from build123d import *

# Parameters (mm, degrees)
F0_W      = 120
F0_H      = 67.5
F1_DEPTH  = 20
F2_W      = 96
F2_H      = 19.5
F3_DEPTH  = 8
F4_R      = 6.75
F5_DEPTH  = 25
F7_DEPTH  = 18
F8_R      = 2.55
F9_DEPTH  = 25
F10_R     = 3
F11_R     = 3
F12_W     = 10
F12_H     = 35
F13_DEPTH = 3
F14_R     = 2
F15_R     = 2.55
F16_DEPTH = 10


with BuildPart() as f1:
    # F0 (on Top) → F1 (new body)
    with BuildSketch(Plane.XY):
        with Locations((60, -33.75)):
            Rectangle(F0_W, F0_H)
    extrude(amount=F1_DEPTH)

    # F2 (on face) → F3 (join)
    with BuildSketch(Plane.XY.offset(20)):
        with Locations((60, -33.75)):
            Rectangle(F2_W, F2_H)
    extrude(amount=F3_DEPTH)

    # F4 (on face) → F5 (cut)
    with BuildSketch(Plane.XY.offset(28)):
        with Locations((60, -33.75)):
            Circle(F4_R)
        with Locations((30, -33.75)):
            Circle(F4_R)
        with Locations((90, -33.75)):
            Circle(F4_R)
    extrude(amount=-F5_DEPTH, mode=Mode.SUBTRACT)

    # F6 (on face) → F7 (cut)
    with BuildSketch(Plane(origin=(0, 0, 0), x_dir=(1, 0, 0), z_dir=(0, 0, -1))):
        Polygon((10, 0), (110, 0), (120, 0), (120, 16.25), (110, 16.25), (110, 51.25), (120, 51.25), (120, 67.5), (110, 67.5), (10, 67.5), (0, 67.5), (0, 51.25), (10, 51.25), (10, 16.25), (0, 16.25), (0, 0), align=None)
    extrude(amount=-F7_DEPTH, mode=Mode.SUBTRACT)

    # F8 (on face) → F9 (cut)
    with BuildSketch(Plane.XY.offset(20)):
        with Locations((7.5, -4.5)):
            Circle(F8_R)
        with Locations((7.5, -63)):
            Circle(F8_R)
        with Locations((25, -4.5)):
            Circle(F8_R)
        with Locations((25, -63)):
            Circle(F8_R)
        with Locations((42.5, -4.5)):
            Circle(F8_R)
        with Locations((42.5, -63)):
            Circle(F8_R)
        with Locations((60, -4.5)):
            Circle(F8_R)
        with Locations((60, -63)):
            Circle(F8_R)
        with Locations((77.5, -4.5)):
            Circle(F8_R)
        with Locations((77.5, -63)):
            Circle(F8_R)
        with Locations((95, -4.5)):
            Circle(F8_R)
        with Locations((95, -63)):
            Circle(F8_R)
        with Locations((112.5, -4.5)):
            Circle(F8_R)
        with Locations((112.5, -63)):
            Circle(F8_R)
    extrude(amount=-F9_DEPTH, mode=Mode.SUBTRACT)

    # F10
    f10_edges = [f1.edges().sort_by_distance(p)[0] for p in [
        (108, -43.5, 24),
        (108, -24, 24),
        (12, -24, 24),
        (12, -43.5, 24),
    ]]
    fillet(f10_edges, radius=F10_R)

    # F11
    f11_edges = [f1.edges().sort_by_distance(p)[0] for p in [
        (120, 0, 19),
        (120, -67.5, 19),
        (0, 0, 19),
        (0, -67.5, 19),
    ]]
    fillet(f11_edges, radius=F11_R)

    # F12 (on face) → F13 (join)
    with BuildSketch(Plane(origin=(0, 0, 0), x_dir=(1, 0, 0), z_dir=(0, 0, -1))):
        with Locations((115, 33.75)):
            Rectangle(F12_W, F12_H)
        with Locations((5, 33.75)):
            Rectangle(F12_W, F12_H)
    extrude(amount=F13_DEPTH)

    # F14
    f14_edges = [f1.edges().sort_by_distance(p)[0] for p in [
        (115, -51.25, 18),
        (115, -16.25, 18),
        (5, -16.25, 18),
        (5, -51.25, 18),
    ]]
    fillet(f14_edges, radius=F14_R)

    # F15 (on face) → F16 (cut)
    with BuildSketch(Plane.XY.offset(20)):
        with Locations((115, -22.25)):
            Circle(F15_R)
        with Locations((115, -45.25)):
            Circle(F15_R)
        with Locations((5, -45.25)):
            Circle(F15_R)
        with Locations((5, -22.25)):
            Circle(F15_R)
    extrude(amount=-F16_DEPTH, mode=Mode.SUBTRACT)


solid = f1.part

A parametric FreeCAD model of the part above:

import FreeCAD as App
import Part
import Sketcher
from FreeCAD import Vector
Q = App.Units.Quantity


def edges_at(feature, points):
    """Names of the edges that pass closest to the given points."""
    edges = feature.Shape.Edges
    near = lambda p: min(range(len(edges)), key=lambda i: edges[i].distToShape(Part.Vertex(*p))[0])
    return sorted({f"Edge{near(p) + 1}" for p in points})


def add_polygon(sketch, points):
    """Adds a closed chain of lines whose ends are joined by coincident constraints."""
    first, n = sketch.GeometryCount, len(points)
    for a, b in zip(points, points[1:] + points[:1]):
        sketch.addGeometry(Part.LineSegment(App.Vector(*a, 0), App.Vector(*b, 0)), False)
    for i in range(n):
        sketch.addConstraint(Sketcher.Constraint("Coincident", first + i, 2, first + (i + 1) % n, 1))

doc = App.newDocument("Part")
params = doc.addObject("Spreadsheet::Sheet", "Params")
for row, (alias, value) in enumerate([
    ("sketch1_width", "120 mm"),
    ("sketch1_height", "67.5 mm"),
    ("pad1_length", "20 mm"),
    ("sketch2_width", "96 mm"),
    ("sketch2_height", "19.5 mm"),
    ("pad2_length", "8 mm"),
    ("sketch3_diameter", "13.5 mm"),
    ("pocket1_length", "25 mm"),
    ("sketch4_width", "10 mm"),
    ("sketch4_width2", "120 mm"),
    ("sketch4_height", "35 mm"),
    ("sketch4_height2", "16.25 mm"),
    ("pocket2_length", "18 mm"),
    ("sketch5_diameter", "5.1 mm"),
    ("pocket3_length", "25 mm"),
    ("fillet_radius", "3 mm"),
    ("fillet2_radius", "3 mm"),
    ("sketch6_width", "10 mm"),
    ("sketch6_height", "35 mm"),
    ("pad3_length", "3 mm"),
    ("fillet3_radius", "2 mm"),
    ("sketch7_diameter", "5.1 mm"),
    ("pocket4_length", "10 mm"),
], start=1):
    params.set(f"A{row}", alias)
    params.set(f"B{row}", "=" + value)
    params.setAlias(f"B{row}", alias)

body = doc.addObject("PartDesign::Body", "Body")

sketch1 = body.newObject("Sketcher::SketchObject", "Sketch")
sketch1.AttachmentSupport = (doc.getObject("XY_Plane"), [""])
sketch1.MapMode = "FlatFace"
add_polygon(sketch1, [(0, 0), (0, -68), (120, -68), (120, 0)])
sketch1.addConstraint([
    Sketcher.Constraint("Vertical", 0),
    Sketcher.Constraint("Horizontal", 1),
    Sketcher.Constraint("Vertical", 2),
    Sketcher.Constraint("Horizontal", 3),
    Sketcher.Constraint("Coincident", 3, 2, -1, 1),
    Sketcher.Constraint("DistanceX", 1, 1, 1, 2, Q("120 mm")),
    Sketcher.Constraint("DistanceY", 0, 2, 0, 1, Q("67.5 mm")),
])
sketch1.setExpression("Constraints[9]", "Params.sketch1_width")
sketch1.setExpression("Constraints[10]", "Params.sketch1_height")
pad1 = body.newObject("PartDesign::Pad", "Pad")
pad1.Profile = sketch1
pad1.setExpression("Length", "Params.pad1_length")

sketch2 = body.newObject("Sketcher::SketchObject", "Sketch001")
sketch2.AttachmentSupport = (doc.getObject("XY_Plane"), [""])
sketch2.MapMode = "FlatFace"
sketch2.AttachmentOffset = App.Placement(Vector(0, 0, 20), App.Rotation())
add_polygon(sketch2, [(12, -24), (12, -44), (108, -44), (108, -24)])
sketch2.addConstraint([
    Sketcher.Constraint("Vertical", 0),
    Sketcher.Constraint("Horizontal", 1),
    Sketcher.Constraint("Vertical", 2),
    Sketcher.Constraint("Horizontal", 3),
    Sketcher.Constraint("DistanceX", 1, 1, 1, 2, Q("96 mm")),
    Sketcher.Constraint("DistanceY", 0, 2, 0, 1, Q("19.5 mm")),
    Sketcher.Constraint("DistanceX", -1, 1, 0, 2, Q("12 mm")),
    Sketcher.Constraint("DistanceY", 2, 2, -1, 1, Q("24 mm")),
])
sketch2.setExpression("Constraints[8]", "Params.sketch2_width")
sketch2.setExpression("Constraints[9]", "Params.sketch2_height")
pad2 = body.newObject("PartDesign::Pad", "Pad001")
pad2.Profile = sketch2
pad2.setExpression("Length", "Params.pad2_length")

sketch3 = body.newObject("Sketcher::SketchObject", "Sketch002")
sketch3.AttachmentSupport = (doc.getObject("XY_Plane"), [""])
sketch3.MapMode = "FlatFace"
sketch3.AttachmentOffset = App.Placement(Vector(0, 0, 28), App.Rotation())
sketch3.addGeometry([
    Part.Circle(Vector(60, -34, 0), Vector(0, 0, 1), 7),
    Part.Circle(Vector(30, -34, 0), Vector(0, 0, 1), 7),
    Part.Circle(Vector(90, -34, 0), Vector(0, 0, 1), 7),
], False)
sketch3.addConstraint([
    Sketcher.Constraint("Equal", 0, 1),
    Sketcher.Constraint("Equal", 1, 2),
    Sketcher.Constraint("Horizontal", 0, 3, 1, 3),
    Sketcher.Constraint("Horizontal", 1, 3, 2, 3),
    Sketcher.Constraint("Diameter", 0, Q("13.5 mm")),
    Sketcher.Constraint("DistanceX", -1, 1, 0, 3, Q("60 mm")),
    Sketcher.Constraint("DistanceX", -1, 1, 1, 3, Q("30 mm")),
    Sketcher.Constraint("DistanceX", -1, 1, 2, 3, Q("90 mm")),
    Sketcher.Constraint("DistanceY", 0, 3, -1, 1, Q("33.75 mm")),
])
sketch3.setExpression("Constraints[4]", "Params.sketch3_diameter")
pocket1 = body.newObject("PartDesign::Pocket", "Pocket")
pocket1.Profile = sketch3
pocket1.setExpression("Length", "Params.pocket1_length")

sketch4 = body.newObject("Sketcher::SketchObject", "Sketch003")
sketch4.AttachmentSupport = (doc.getObject("XY_Plane"), [""])
sketch4.MapMode = "FlatFace"
add_polygon(sketch4, [(120, 0), (120, -16), (110, -16), (110, -51), (120, -51), (120, -68), (0, -68), (0, -51), (10, -51), (10, -16), (0, -16), (0, 0)])
sketch4.addConstraint([
    Sketcher.Constraint("Vertical", 0),
    Sketcher.Constraint("Horizontal", 1),
    Sketcher.Constraint("Vertical", 2),
    Sketcher.Constraint("Horizontal", 3),
    Sketcher.Constraint("Vertical", 4),
    Sketcher.Constraint("Horizontal", 5),
    Sketcher.Constraint("Vertical", 6),
    Sketcher.Constraint("Horizontal", 7),
    Sketcher.Constraint("Vertical", 8),
    Sketcher.Constraint("Horizontal", 9),
    Sketcher.Constraint("Vertical", 10),
    Sketcher.Constraint("Horizontal", 11),
    Sketcher.Constraint("Coincident", 10, 2, -1, 1),
    Sketcher.Constraint("PointOnObject", 5, 2, -2),
    Sketcher.Constraint("Horizontal", 3, 2, 6, 2),
    Sketcher.Constraint("Horizontal", 1, 2, 8, 2),
    Sketcher.Constraint("Vertical", 0, 2, 3, 2),
    Sketcher.Constraint("Equal", 3, 7),
    Sketcher.Constraint("Equal", 0, 4),
    Sketcher.Constraint("DistanceX", 1, 2, 1, 1, Q("10 mm")),
    Sketcher.Constraint("DistanceX", 5, 2, 5, 1, Q("120 mm")),
    Sketcher.Constraint("DistanceY", 2, 2, 2, 1, Q("35 mm")),
    Sketcher.Constraint("DistanceY", 0, 2, 0, 1, Q("16.25 mm")),
])
sketch4.setExpression("Constraints[31]", "Params.sketch4_width")
sketch4.setExpression("Constraints[32]", "Params.sketch4_width2")
sketch4.setExpression("Constraints[33]", "Params.sketch4_height")
sketch4.setExpression("Constraints[34]", "Params.sketch4_height2")
pocket2 = body.newObject("PartDesign::Pocket", "Pocket001")
pocket2.Profile = sketch4
pocket2.setExpression("Length", "Params.pocket2_length")
pocket2.Reversed = True

sketch5 = body.newObject("Sketcher::SketchObject", "Sketch004")
sketch5.AttachmentSupport = (doc.getObject("XY_Plane"), [""])
sketch5.MapMode = "FlatFace"
sketch5.AttachmentOffset = App.Placement(Vector(0, 0, 20), App.Rotation())
sketch5.addGeometry([
    Part.Circle(Vector(7.5, -4.5, 0), Vector(0, 0, 1), 2.5),
    Part.Circle(Vector(7.5, -63, 0), Vector(0, 0, 1), 2.5),
    Part.Circle(Vector(25, -4.5, 0), Vector(0, 0, 1), 2.5),
    Part.Circle(Vector(25, -63, 0), Vector(0, 0, 1), 2.5),
    Part.Circle(Vector(42.5, -4.5, 0), Vector(0, 0, 1), 2.5),
    Part.Circle(Vector(42.5, -63, 0), Vector(0, 0, 1), 2.5),
    Part.Circle(Vector(60, -4.5, 0), Vector(0, 0, 1), 2.5),
    Part.Circle(Vector(60, -63, 0), Vector(0, 0, 1), 2.5),
    Part.Circle(Vector(77.5, -4.5, 0), Vector(0, 0, 1), 2.5),
    Part.Circle(Vector(77.5, -63, 0), Vector(0, 0, 1), 2.5),
    Part.Circle(Vector(95, -4.5, 0), Vector(0, 0, 1), 2.5),
    Part.Circle(Vector(95, -63, 0), Vector(0, 0, 1), 2.5),
    Part.Circle(Vector(112.5, -4.5, 0), Vector(0, 0, 1), 2.5),
    Part.Circle(Vector(112.5, -63, 0), Vector(0, 0, 1), 2.5),
], False)
sketch5.addConstraint([
    Sketcher.Constraint("Equal", 0, 1),
    Sketcher.Constraint("Equal", 1, 2),
    Sketcher.Constraint("Equal", 2, 3),
    Sketcher.Constraint("Equal", 3, 4),
    Sketcher.Constraint("Equal", 4, 5),
    Sketcher.Constraint("Equal", 5, 6),
    Sketcher.Constraint("Equal", 6, 7),
    Sketcher.Constraint("Equal", 7, 8),
    Sketcher.Constraint("Equal", 8, 9),
    Sketcher.Constraint("Equal", 9, 10),
    Sketcher.Constraint("Equal", 10, 11),
    Sketcher.Constraint("Equal", 11, 12),
    Sketcher.Constraint("Equal", 12, 13),
    Sketcher.Constraint("Horizontal", 0, 3, 2, 3),
    Sketcher.Constraint("Horizontal", 1, 3, 3, 3),
    Sketcher.Constraint("Horizontal", 2, 3, 4, 3),
    Sketcher.Constraint("Horizontal", 3, 3, 5, 3),
    Sketcher.Constraint("Horizontal", 4, 3, 6, 3),
    Sketcher.Constraint("Horizontal", 5, 3, 7, 3),
    Sketcher.Constraint("Horizontal", 6, 3, 8, 3),
    Sketcher.Constraint("Horizontal", 7, 3, 9, 3),
    Sketcher.Constraint("Horizontal", 8, 3, 10, 3),
    Sketcher.Constraint("Horizontal", 9, 3, 11, 3),
    Sketcher.Constraint("Horizontal", 10, 3, 12, 3),
    Sketcher.Constraint("Horizontal", 11, 3, 13, 3),
    Sketcher.Constraint("Vertical", 0, 3, 1, 3),
    Sketcher.Constraint("Vertical", 2, 3, 3, 3),
    Sketcher.Constraint("Vertical", 4, 3, 5, 3),
    Sketcher.Constraint("Vertical", 6, 3, 7, 3),
    Sketcher.Constraint("Vertical", 8, 3, 9, 3),
    Sketcher.Constraint("Vertical", 10, 3, 11, 3),
    Sketcher.Constraint("Vertical", 12, 3, 13, 3),
    Sketcher.Constraint("Diameter", 0, Q("5.1 mm")),
    Sketcher.Constraint("DistanceY", 1, 3, -1, 1, Q("63 mm")),
    Sketcher.Constraint("DistanceX", -1, 1, 2, 3, Q("25 mm")),
    Sketcher.Constraint("DistanceX", -1, 1, 6, 3, Q("60 mm")),
    Sketcher.Constraint("DistanceX", -1, 1, 10, 3, Q("95 mm")),
    Sketcher.Constraint("DistanceX", 0, 3, 4, 3, Q("35 mm")),
    Sketcher.Constraint("DistanceX", 4, 3, 8, 3, Q("35 mm")),
    Sketcher.Constraint("DistanceX", 8, 3, 12, 3, Q("35 mm")),
    Sketcher.Constraint("DistanceX", -1, 1, 0, 3, Q("7.5 mm")),
    Sketcher.Constraint("DistanceY", 0, 3, -1, 1, Q("4.5 mm")),
])
sketch5.setExpression("Constraints[32]", "Params.sketch5_diameter")
pocket3 = body.newObject("PartDesign::Pocket", "Pocket002")
pocket3.Profile = sketch5
pocket3.setExpression("Length", "Params.pocket3_length")
doc.recompute()

fillet = body.newObject("PartDesign::Fillet", "Fillet")
fillet.Base = (pocket3, edges_at(pocket3, [
    (108, -43.5, 24),
    (108, -24, 24),
    (12, -24, 24),
    (12, -43.5, 24),
]))
fillet.setExpression("Radius", "Params.fillet_radius")
doc.recompute()

fillet2 = body.newObject("PartDesign::Fillet", "Fillet001")
fillet2.Base = (fillet, edges_at(fillet, [
    (120, 0, 19),
    (120, -67.5, 19),
    (0, 0, 19),
    (0, -67.5, 19),
]))
fillet2.setExpression("Radius", "Params.fillet2_radius")

sketch6 = body.newObject("Sketcher::SketchObject", "Sketch005")
sketch6.AttachmentSupport = (doc.getObject("XY_Plane"), [""])
sketch6.MapMode = "FlatFace"
add_polygon(sketch6, [(110, -51), (110, -16), (120, -16), (120, -51)])
add_polygon(sketch6, [(0, -51), (0, -16), (10, -16), (10, -51)])
sketch6.addConstraint([
    Sketcher.Constraint("Vertical", 0),
    Sketcher.Constraint("Horizontal", 1),
    Sketcher.Constraint("Vertical", 2),
    Sketcher.Constraint("Horizontal", 3),
    Sketcher.Constraint("Vertical", 4),
    Sketcher.Constraint("Horizontal", 5),
    Sketcher.Constraint("Vertical", 6),
    Sketcher.Constraint("Horizontal", 7),
    Sketcher.Constraint("PointOnObject", 4, 2, -2),
    Sketcher.Constraint("Horizontal", 1, 2, 4, 2),
    Sketcher.Constraint("Horizontal", 3, 2, 6, 2),
    Sketcher.Constraint("Equal", 3, 5),
    Sketcher.Constraint("DistanceX", 1, 1, 1, 2, Q("10 mm")),
    Sketcher.Constraint("DistanceY", 0, 1, 0, 2, Q("35 mm")),
    Sketcher.Constraint("DistanceX", -1, 1, 0, 2, Q("110 mm")),
    Sketcher.Constraint("DistanceY", 0, 2, -1, 1, Q("16.25 mm")),
])
sketch6.setExpression("Constraints[20]", "Params.sketch6_width")
sketch6.setExpression("Constraints[21]", "Params.sketch6_height")
pad3 = body.newObject("PartDesign::Pad", "Pad002")
pad3.Profile = sketch6
pad3.setExpression("Length", "Params.pad3_length")
pad3.Reversed = True
doc.recompute()

fillet3 = body.newObject("PartDesign::Fillet", "Fillet002")
fillet3.Base = (pad3, edges_at(pad3, [
    (115, -51.25, 18),
    (115, -16.25, 18),
    (5, -16.25, 18),
    (5, -51.25, 18),
]))
fillet3.setExpression("Radius", "Params.fillet3_radius")

sketch7 = body.newObject("Sketcher::SketchObject", "Sketch006")
sketch7.AttachmentSupport = (doc.getObject("XY_Plane"), [""])
sketch7.MapMode = "FlatFace"
sketch7.AttachmentOffset = App.Placement(Vector(0, 0, 20), App.Rotation())
sketch7.addGeometry([
    Part.Circle(Vector(115, -22.2, 0), Vector(0, 0, 1), 2.5),
    Part.Circle(Vector(115, -45.2, 0), Vector(0, 0, 1), 2.5),
    Part.Circle(Vector(5, -45.2, 0), Vector(0, 0, 1), 2.5),
    Part.Circle(Vector(5, -22.2, 0), Vector(0, 0, 1), 2.5),
], False)
sketch7.addConstraint([
    Sketcher.Constraint("Equal", 0, 1),
    Sketcher.Constraint("Equal", 1, 2),
    Sketcher.Constraint("Equal", 2, 3),
    Sketcher.Constraint("Horizontal", 1, 3, 2, 3),
    Sketcher.Constraint("Horizontal", 0, 3, 3, 3),
    Sketcher.Constraint("Vertical", 0, 3, 1, 3),
    Sketcher.Constraint("Vertical", 2, 3, 3, 3),
    Sketcher.Constraint("Diameter", 0, Q("5.1 mm")),
    Sketcher.Constraint("DistanceX", -1, 1, 0, 3, Q("115 mm")),
    Sketcher.Constraint("DistanceX", -1, 1, 2, 3, Q("5 mm")),
    Sketcher.Constraint("DistanceY", 1, 3, 0, 3, Q("23 mm")),
    Sketcher.Constraint("DistanceY", 0, 3, -1, 1, Q("22.25 mm")),
])
sketch7.setExpression("Constraints[7]", "Params.sketch7_diameter")
pocket4 = body.newObject("PartDesign::Pocket", "Pocket003")
pocket4.Profile = sketch7
pocket4.setExpression("Length", "Params.pocket4_length")

doc.recompute()
